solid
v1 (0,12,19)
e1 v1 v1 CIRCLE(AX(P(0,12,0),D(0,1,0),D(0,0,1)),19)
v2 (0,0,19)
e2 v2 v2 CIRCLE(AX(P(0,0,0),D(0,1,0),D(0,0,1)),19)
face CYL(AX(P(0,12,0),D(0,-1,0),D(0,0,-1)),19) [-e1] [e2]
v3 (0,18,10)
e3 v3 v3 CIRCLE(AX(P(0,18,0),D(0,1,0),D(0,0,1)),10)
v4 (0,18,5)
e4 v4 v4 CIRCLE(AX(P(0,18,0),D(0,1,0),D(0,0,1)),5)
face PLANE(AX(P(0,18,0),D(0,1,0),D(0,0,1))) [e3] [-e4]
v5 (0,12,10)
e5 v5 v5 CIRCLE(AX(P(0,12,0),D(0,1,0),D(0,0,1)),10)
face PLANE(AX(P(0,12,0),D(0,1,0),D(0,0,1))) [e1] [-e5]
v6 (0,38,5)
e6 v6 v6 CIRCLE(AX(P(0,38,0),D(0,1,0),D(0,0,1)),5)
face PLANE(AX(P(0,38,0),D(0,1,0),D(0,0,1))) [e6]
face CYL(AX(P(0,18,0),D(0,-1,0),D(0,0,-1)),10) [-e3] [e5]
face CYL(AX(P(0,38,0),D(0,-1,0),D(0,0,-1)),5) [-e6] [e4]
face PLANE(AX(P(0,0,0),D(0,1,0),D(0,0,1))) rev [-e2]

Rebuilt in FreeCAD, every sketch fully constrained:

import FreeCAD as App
import Part
import Sketcher

V = App.Vector
Q = App.Units.Quantity

doc = App.newDocument("Part")
body = doc.addObject("PartDesign::Body", "Body")

sketch1 = body.newObject("Sketcher::SketchObject", "Sketch")
sketch1.AttachmentSupport = (doc.getObject("XZ_Plane"), [""])
sketch1.MapMode = "FlatFace"
sketch1.addGeometry(Part.Circle(V(0, 0, 0), V(0, 0, 1), 19), False)
sketch1.addConstraint([
    Sketcher.Constraint("Coincident", 0, 3, -1, 1),
    Sketcher.Constraint("Diameter", 0, Q("38 mm")),
])
pad1 = body.newObject("PartDesign::Pad", "Pad")
pad1.Profile = sketch1
pad1.Length = 12
pad1.Reversed = True

sketch2 = body.newObject("Sketcher::SketchObject", "Sketch001")
sketch2.AttachmentSupport = (doc.getObject("XZ_Plane"), [""])
sketch2.MapMode = "FlatFace"
sketch2.AttachmentOffset = App.Placement(V(0, 0, -12), App.Rotation())
sketch2.addGeometry(Part.Circle(V(0, 0, 0), V(0, 0, 1), 10), False)
sketch2.addConstraint([
    Sketcher.Constraint("Coincident", 0, 3, -1, 1),
    Sketcher.Constraint("Diameter", 0, Q("20 mm")),
])
pad2 = body.newObject("PartDesign::Pad", "Pad001")
pad2.Profile = sketch2
pad2.Length = 6
pad2.Reversed = True

sketch3 = body.newObject("Sketcher::SketchObject", "Sketch002")
sketch3.AttachmentSupport = (doc.getObject("XZ_Plane"), [""])
sketch3.MapMode = "FlatFace"
sketch3.AttachmentOffset = App.Placement(V(0, 0, -18), App.Rotation())
sketch3.addGeometry(Part.Circle(V(0, 0, 0), V(0, 0, 1), 5), False)
sketch3.addConstraint([
    Sketcher.Constraint("Coincident", 0, 3, -1, 1),
    Sketcher.Constraint("Diameter", 0, Q("10 mm")),
])
pad3 = body.newObject("PartDesign::Pad", "Pad002")
pad3.Profile = sketch3
pad3.Length = 20
pad3.Reversed = True

doc.recompute()
